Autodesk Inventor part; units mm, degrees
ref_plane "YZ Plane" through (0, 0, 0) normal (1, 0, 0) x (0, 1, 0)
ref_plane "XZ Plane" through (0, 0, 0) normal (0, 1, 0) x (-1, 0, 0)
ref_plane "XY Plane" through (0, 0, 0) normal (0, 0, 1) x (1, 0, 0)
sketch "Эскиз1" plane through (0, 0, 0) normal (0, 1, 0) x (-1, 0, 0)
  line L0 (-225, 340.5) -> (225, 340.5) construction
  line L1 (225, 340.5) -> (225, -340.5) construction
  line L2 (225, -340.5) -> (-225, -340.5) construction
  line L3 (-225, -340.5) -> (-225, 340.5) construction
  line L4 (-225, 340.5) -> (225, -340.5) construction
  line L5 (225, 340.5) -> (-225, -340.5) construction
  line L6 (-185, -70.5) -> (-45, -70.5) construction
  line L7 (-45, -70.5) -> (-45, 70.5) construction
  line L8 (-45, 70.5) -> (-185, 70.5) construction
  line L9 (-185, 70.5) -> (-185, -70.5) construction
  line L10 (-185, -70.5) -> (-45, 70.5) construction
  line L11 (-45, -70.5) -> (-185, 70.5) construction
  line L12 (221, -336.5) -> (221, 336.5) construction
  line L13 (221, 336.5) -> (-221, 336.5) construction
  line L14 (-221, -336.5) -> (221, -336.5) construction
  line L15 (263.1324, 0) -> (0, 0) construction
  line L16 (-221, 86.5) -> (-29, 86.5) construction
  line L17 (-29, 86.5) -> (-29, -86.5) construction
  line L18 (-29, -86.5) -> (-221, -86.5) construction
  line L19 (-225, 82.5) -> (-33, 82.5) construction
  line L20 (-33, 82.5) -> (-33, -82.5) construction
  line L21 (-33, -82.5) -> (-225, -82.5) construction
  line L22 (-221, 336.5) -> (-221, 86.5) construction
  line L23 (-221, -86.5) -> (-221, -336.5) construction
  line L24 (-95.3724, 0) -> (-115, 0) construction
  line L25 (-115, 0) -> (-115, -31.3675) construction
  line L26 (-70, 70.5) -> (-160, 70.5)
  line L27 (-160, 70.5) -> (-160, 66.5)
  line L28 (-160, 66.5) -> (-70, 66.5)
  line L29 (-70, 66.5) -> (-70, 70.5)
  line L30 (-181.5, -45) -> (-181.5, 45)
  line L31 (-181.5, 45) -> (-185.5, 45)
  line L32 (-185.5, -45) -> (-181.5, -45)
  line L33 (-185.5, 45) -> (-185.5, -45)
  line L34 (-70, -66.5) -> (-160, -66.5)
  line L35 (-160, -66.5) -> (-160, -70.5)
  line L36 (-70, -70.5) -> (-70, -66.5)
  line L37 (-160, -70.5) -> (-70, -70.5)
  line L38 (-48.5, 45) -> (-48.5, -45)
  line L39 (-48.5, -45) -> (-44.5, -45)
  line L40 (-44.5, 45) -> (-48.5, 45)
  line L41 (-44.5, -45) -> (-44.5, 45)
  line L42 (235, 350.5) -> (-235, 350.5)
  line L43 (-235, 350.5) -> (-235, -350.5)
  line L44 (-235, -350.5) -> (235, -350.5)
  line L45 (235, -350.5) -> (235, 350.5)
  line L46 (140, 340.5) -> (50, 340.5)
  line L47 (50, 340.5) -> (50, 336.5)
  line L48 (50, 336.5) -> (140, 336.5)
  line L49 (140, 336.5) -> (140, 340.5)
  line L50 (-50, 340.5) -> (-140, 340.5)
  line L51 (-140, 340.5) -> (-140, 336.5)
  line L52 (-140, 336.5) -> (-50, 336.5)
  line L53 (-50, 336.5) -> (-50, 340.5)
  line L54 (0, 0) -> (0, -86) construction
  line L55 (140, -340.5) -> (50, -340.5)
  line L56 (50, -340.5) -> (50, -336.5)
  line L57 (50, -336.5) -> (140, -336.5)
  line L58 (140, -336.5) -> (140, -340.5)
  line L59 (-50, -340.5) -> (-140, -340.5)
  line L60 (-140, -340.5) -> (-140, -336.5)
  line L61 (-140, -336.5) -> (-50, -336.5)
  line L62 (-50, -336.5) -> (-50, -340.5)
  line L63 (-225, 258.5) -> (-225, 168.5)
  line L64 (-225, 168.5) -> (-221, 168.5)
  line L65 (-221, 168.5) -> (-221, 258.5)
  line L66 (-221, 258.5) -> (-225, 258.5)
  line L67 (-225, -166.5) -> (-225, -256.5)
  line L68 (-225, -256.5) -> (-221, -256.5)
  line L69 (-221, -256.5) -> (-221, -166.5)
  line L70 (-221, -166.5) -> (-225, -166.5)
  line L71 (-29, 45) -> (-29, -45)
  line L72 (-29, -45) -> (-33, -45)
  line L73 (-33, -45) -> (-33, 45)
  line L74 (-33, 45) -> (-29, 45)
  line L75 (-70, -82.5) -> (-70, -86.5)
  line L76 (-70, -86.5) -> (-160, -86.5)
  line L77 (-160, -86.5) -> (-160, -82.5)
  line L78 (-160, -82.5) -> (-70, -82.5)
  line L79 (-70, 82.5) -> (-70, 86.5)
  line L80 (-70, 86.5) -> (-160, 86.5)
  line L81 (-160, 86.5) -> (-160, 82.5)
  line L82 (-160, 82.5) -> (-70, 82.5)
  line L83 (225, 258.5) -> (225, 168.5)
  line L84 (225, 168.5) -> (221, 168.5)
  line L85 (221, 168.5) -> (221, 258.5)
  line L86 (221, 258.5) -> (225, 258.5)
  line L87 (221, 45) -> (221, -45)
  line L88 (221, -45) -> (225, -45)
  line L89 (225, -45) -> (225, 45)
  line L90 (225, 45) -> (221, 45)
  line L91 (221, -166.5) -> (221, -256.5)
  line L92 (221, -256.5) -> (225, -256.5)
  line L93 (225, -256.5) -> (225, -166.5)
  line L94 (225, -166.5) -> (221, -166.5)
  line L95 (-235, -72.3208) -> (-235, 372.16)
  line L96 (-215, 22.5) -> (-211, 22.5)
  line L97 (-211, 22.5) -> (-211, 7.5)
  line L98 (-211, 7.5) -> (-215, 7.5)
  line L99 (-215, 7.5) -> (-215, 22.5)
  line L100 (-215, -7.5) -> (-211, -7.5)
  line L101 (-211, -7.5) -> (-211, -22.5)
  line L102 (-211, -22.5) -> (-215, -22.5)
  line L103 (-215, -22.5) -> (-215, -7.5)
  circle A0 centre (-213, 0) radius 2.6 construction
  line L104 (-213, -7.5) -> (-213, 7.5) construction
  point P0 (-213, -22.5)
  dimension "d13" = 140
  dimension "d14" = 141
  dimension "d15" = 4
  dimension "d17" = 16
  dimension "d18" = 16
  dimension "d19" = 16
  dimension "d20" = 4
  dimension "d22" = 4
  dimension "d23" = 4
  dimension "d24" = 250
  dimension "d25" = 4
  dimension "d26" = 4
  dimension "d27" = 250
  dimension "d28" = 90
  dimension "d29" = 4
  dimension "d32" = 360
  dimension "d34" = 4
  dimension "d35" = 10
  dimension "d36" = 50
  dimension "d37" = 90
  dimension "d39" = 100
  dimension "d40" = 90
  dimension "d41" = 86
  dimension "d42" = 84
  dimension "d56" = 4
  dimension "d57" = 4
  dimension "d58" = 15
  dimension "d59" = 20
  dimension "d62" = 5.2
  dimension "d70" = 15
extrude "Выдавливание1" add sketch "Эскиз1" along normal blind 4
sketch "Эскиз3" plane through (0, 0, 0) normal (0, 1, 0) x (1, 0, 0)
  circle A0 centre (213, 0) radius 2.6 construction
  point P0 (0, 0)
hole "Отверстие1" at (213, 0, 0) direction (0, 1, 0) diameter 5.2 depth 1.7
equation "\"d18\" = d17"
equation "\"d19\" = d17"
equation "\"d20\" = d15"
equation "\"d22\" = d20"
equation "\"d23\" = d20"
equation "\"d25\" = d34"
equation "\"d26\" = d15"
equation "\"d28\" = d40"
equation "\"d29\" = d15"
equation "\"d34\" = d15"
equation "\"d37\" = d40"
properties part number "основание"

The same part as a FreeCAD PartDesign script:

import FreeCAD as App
import Part
import Sketcher
from FreeCAD import Vector
Q = App.Units.Quantity

doc = App.newDocument("Part")
body = doc.addObject("PartDesign::Body", "Body")

# Sketch on XZ plane
sketch1 = body.newObject("Sketcher::SketchObject", "Sketch")
sketch1.AttachmentSupport = (doc.getObject("XZ_Plane"), [""])
sketch1.MapMode = "FlatFace"
sketch1.addGeometry([
    Part.LineSegment(Vector(-235, -350.5, 0), Vector(-235, 350.5, 0)),  # 0
    Part.LineSegment(Vector(-235, 350.5, 0), Vector(235, 350.5, 0)),  # 1
    Part.LineSegment(Vector(235, 350.5, 0), Vector(235, -350.5, 0)),  # 2
    Part.LineSegment(Vector(235, -350.5, 0), Vector(-235, -350.5, 0)),  # 3
    Part.LineSegment(Vector(225, -256.5, 0), Vector(225, -166.5, 0)),  # 4
    Part.LineSegment(Vector(225, -166.5, 0), Vector(221, -166.5, 0)),  # 5
    Part.LineSegment(Vector(221, -166.5, 0), Vector(221, -256.5, 0)),  # 6
    Part.LineSegment(Vector(221, -256.5, 0), Vector(225, -256.5, 0)),  # 7
    Part.LineSegment(Vector(50, -336.5, 0), Vector(50, -340.5, 0)),  # 8
    Part.LineSegment(Vector(50, -340.5, 0), Vector(140, -340.5, 0)),  # 9
    Part.LineSegment(Vector(140, -340.5, 0), Vector(140, -336.5, 0)),  # 10
    Part.LineSegment(Vector(140, -336.5, 0), Vector(50, -336.5, 0)),  # 11
    Part.LineSegment(Vector(215, -22.5, 0), Vector(215, -7.5, 0)),  # 12
    Part.LineSegment(Vector(215, -7.5, 0), Vector(211, -7.5, 0)),  # 13
    Part.LineSegment(Vector(211, -7.5, 0), Vector(211, -22.5, 0)),  # 14
    Part.LineSegment(Vector(211, -22.5, 0), Vector(215, -22.5, 0)),  # 15
    Part.LineSegment(Vector(160, -82.5, 0), Vector(70, -82.5, 0)),  # 16
    Part.LineSegment(Vector(70, -82.5, 0), Vector(70, -86.5, 0)),  # 17
    Part.LineSegment(Vector(70, -86.5, 0), Vector(160, -86.5, 0)),  # 18
    Part.LineSegment(Vector(160, -86.5, 0), Vector(160, -82.5, 0)),  # 19
    Part.LineSegment(Vector(160, -66.5, 0), Vector(70, -66.5, 0)),  # 20
    Part.LineSegment(Vector(70, -66.5, 0), Vector(70, -70.5, 0)),  # 21
    Part.LineSegment(Vector(70, -70.5, 0), Vector(160, -70.5, 0)),  # 22
    Part.LineSegment(Vector(160, -70.5, 0), Vector(160, -66.5, 0)),  # 23
    Part.LineSegment(Vector(-140, -336.5, 0), Vector(-140, -340.5, 0)),  # 24
    Part.LineSegment(Vector(-140, -340.5, 0), Vector(-50, -340.5, 0)),  # 25
    Part.LineSegment(Vector(-50, -340.5, 0), Vector(-50, -336.5, 0)),  # 26
    Part.LineSegment(Vector(-50, -336.5, 0), Vector(-140, -336.5, 0)),  # 27
    Part.LineSegment(Vector(-221, -256.5, 0), Vector(-221, -166.5, 0)),  # 28
    Part.LineSegment(Vector(-221, -166.5, 0), Vector(-225, -166.5, 0)),  # 29
    Part.LineSegment(Vector(-225, -166.5, 0), Vector(-225, -256.5, 0)),  # 30
    Part.LineSegment(Vector(-225, -256.5, 0), Vector(-221, -256.5, 0)),  # 31
    Part.LineSegment(Vector(215, 7.5, 0), Vector(215, 22.5, 0)),  # 32
    Part.LineSegment(Vector(215, 22.5, 0), Vector(211, 22.5, 0)),  # 33
    Part.LineSegment(Vector(211, 22.5, 0), Vector(211, 7.5, 0)),  # 34
    Part.LineSegment(Vector(211, 7.5, 0), Vector(215, 7.5, 0)),  # 35
    Part.LineSegment(Vector(181.5, 45, 0), Vector(181.5, -45, 0)),  # 36
    Part.LineSegment(Vector(181.5, -45, 0), Vector(185.5, -45, 0)),  # 37
    Part.LineSegment(Vector(185.5, -45, 0), Vector(185.5, 45, 0)),  # 38
    Part.LineSegment(Vector(185.5, 45, 0), Vector(181.5, 45, 0)),  # 39
    Part.LineSegment(Vector(160, 70.5, 0), Vector(70, 70.5, 0)),  # 40
    Part.LineSegment(Vector(70, 70.5, 0), Vector(70, 66.5, 0)),  # 41
    Part.LineSegment(Vector(70, 66.5, 0), Vector(160, 66.5, 0)),  # 42
    Part.LineSegment(Vector(160, 66.5, 0), Vector(160, 70.5, 0)),  # 43
    Part.LineSegment(Vector(70, 86.5, 0), Vector(70, 82.5, 0)),  # 44
    Part.LineSegment(Vector(70, 82.5, 0), Vector(160, 82.5, 0)),  # 45
    Part.LineSegment(Vector(160, 82.5, 0), Vector(160, 86.5, 0)),  # 46
    Part.LineSegment(Vector(160, 86.5, 0), Vector(70, 86.5, 0)),  # 47
    Part.LineSegment(Vector(48.5, -45, 0), Vector(48.5, 45, 0)),  # 48
    Part.LineSegment(Vector(48.5, 45, 0), Vector(44.5, 45, 0)),  # 49
    Part.LineSegment(Vector(44.5, 45, 0), Vector(44.5, -45, 0)),  # 50
    Part.LineSegment(Vector(44.5, -45, 0), Vector(48.5, -45, 0)),  # 51
    Part.LineSegment(Vector(33, 45, 0), Vector(29, 45, 0)),  # 52
    Part.LineSegment(Vector(29, 45, 0), Vector(29, -45, 0)),  # 53
    Part.LineSegment(Vector(29, -45, 0), Vector(33, -45, 0)),  # 54
    Part.LineSegment(Vector(33, -45, 0), Vector(33, 45, 0)),  # 55
    Part.LineSegment(Vector(225, 168.5, 0), Vector(225, 258.5, 0)),  # 56
    Part.LineSegment(Vector(225, 258.5, 0), Vector(221, 258.5, 0)),  # 57
    Part.LineSegment(Vector(221, 258.5, 0), Vector(221, 168.5, 0)),  # 58
    Part.LineSegment(Vector(221, 168.5, 0), Vector(225, 168.5, 0)),  # 59
    Part.LineSegment(Vector(140, 340.5, 0), Vector(50, 340.5, 0)),  # 60
    Part.LineSegment(Vector(50, 340.5, 0), Vector(50, 336.5, 0)),  # 61
    Part.LineSegment(Vector(50, 336.5, 0), Vector(140, 336.5, 0)),  # 62
    Part.LineSegment(Vector(140, 336.5, 0), Vector(140, 340.5, 0)),  # 63
    Part.LineSegment(Vector(-221, -45, 0), Vector(-221, 45, 0)),  # 64
    Part.LineSegment(Vector(-221, 45, 0), Vector(-225, 45, 0)),  # 65
    Part.LineSegment(Vector(-225, 45, 0), Vector(-225, -45, 0)),  # 66
    Part.LineSegment(Vector(-225, -45, 0), Vector(-221, -45, 0)),  # 67
    Part.LineSegment(Vector(-50, 340.5, 0), Vector(-140, 340.5, 0)),  # 68
    Part.LineSegment(Vector(-140, 340.5, 0), Vector(-140, 336.5, 0)),  # 69
    Part.LineSegment(Vector(-140, 336.5, 0), Vector(-50, 336.5, 0)),  # 70
    Part.LineSegment(Vector(-50, 336.5, 0), Vector(-50, 340.5, 0)),  # 71
    Part.LineSegment(Vector(-221, 258.5, 0), Vector(-225, 258.5, 0)),  # 72
    Part.LineSegment(Vector(-225, 258.5, 0), Vector(-225, 168.5, 0)),  # 73
    Part.LineSegment(Vector(-225, 168.5, 0), Vector(-221, 168.5, 0)),  # 74
    Part.LineSegment(Vector(-221, 168.5, 0), Vector(-221, 258.5, 0)),  # 75
], False)
sketch1.addConstraint([
    Sketcher.Constraint("Coincident", 0, 2, 1, 1),
    Sketcher.Constraint("Coincident", 1, 2, 2, 1),
    Sketcher.Constraint("Coincident", 2, 2, 3, 1),
    Sketcher.Constraint("Coincident", 3, 2, 0, 1),
    Sketcher.Constraint("Coincident", 4, 2, 5, 1),
    Sketcher.Constraint("Coincident", 5, 2, 6, 1),
    Sketcher.Constraint("Coincident", 6, 2, 7, 1),
    Sketcher.Constraint("Coincident", 7, 2, 4, 1),
    Sketcher.Constraint("Coincident", 8, 2, 9, 1),
    Sketcher.Constraint("Coincident", 9, 2, 10, 1),
    Sketcher.Constraint("Coincident", 10, 2, 11, 1),
    Sketcher.Constraint("Coincident", 11, 2, 8, 1),
    Sketcher.Constraint("Coincident", 12, 2, 13, 1),
    Sketcher.Constraint("Coincident", 13, 2, 14, 1),
    Sketcher.Constraint("Coincident", 14, 2, 15, 1),
    Sketcher.Constraint("Coincident", 15, 2, 12, 1),
    Sketcher.Constraint("Coincident", 16, 2, 17, 1),
    Sketcher.Constraint("Coincident", 17, 2, 18, 1),
    Sketcher.Constraint("Coincident", 18, 2, 19, 1),
    Sketcher.Constraint("Coincident", 19, 2, 16, 1),
    Sketcher.Constraint("Coincident", 20, 2, 21, 1),
    Sketcher.Constraint("Coincident", 21, 2, 22, 1),
    Sketcher.Constraint("Coincident", 22, 2, 23, 1),
    Sketcher.Constraint("Coincident", 23, 2, 20, 1),
    Sketcher.Constraint("Coincident", 24, 2, 25, 1),
    Sketcher.Constraint("Coincident", 25, 2, 26, 1),
    Sketcher.Constraint("Coincident", 26, 2, 27, 1),
    Sketcher.Constraint("Coincident", 27, 2, 24, 1),
    Sketcher.Constraint("Coincident", 28, 2, 29, 1),
    Sketcher.Constraint("Coincident", 29, 2, 30, 1),
    Sketcher.Constraint("Coincident", 30, 2, 31, 1),
    Sketcher.Constraint("Coincident", 31, 2, 28, 1),
    Sketcher.Constraint("Coincident", 32, 2, 33, 1),
    Sketcher.Constraint("Coincident", 33, 2, 34, 1),
    Sketcher.Constraint("Coincident", 34, 2, 35, 1),
    Sketcher.Constraint("Coincident", 35, 2, 32, 1),
    Sketcher.Constraint("Coincident", 36, 2, 37, 1),
    Sketcher.Constraint("Coincident", 37, 2, 38, 1),
    Sketcher.Constraint("Coincident", 38, 2, 39, 1),
    Sketcher.Constraint("Coincident", 39, 2, 36, 1),
    Sketcher.Constraint("Coincident", 40, 2, 41, 1),
    Sketcher.Constraint("Coincident", 41, 2, 42, 1),
    Sketcher.Constraint("Coincident", 42, 2, 43, 1),
    Sketcher.Constraint("Coincident", 43, 2, 40, 1),
    Sketcher.Constraint("Coincident", 44, 2, 45, 1),
    Sketcher.Constraint("Coincident", 45, 2, 46, 1),
    Sketcher.Constraint("Coincident", 46, 2, 47, 1),
    Sketcher.Constraint("Coincident", 47, 2, 44, 1),
    Sketcher.Constraint("Coincident", 48, 2, 49, 1),
    Sketcher.Constraint("Coincident", 49, 2, 50, 1),
    Sketcher.Constraint("Coincident", 50, 2, 51, 1),
    Sketcher.Constraint("Coincident", 51, 2, 48, 1),
    Sketcher.Constraint("Coincident", 52, 2, 53, 1),
    Sketcher.Constraint("Coincident", 53, 2, 54, 1),
    Sketcher.Constraint("Coincident", 54, 2, 55, 1),
    Sketcher.Constraint("Coincident", 55, 2, 52, 1),
    Sketcher.Constraint("Coincident", 56, 2, 57, 1),
    Sketcher.Constraint("Coincident", 57, 2, 58, 1),
    Sketcher.Constraint("Coincident", 58, 2, 59, 1),
    Sketcher.Constraint("Coincident", 59, 2, 56, 1),
    Sketcher.Constraint("Coincident", 60, 2, 61, 1),
    Sketcher.Constraint("Coincident", 61, 2, 62, 1),
    Sketcher.Constraint("Coincident", 62, 2, 63, 1),
    Sketcher.Constraint("Coincident", 63, 2, 60, 1),
    Sketcher.Constraint("Coincident", 64, 2, 65, 1),
    Sketcher.Constraint("Coincident", 65, 2, 66, 1),
    Sketcher.Constraint("Coincident", 66, 2, 67, 1),
    Sketcher.Constraint("Coincident", 67, 2, 64, 1),
    Sketcher.Constraint("Coincident", 68, 2, 69, 1),
    Sketcher.Constraint("Coincident", 69, 2, 70, 1),
    Sketcher.Constraint("Coincident", 70, 2, 71, 1),
    Sketcher.Constraint("Coincident", 71, 2, 68, 1),
    Sketcher.Constraint("Coincident", 72, 2, 73, 1),
    Sketcher.Constraint("Coincident", 73, 2, 74, 1),
    Sketcher.Constraint("Coincident", 74, 2, 75, 1),
    Sketcher.Constraint("Coincident", 75, 2, 72, 1),
    Sketcher.Constraint("Vertical", 0),
    Sketcher.Constraint("Horizontal", 1),
    Sketcher.Constraint("Vertical", 2),
    Sketcher.Constraint("Horizontal", 3),
    Sketcher.Constraint("Vertical", 4),
    Sketcher.Constraint("Horizontal", 5),
    Sketcher.Constraint("Vertical", 6),
    Sketcher.Constraint("Horizontal", 7),
    Sketcher.Constraint("Vertical", 8),
    Sketcher.Constraint("Horizontal", 9),
    Sketcher.Constraint("Vertical", 10),
    Sketcher.Constraint("Horizontal", 11),
    Sketcher.Constraint("Vertical", 12),
    Sketcher.Constraint("Horizontal", 13),
    Sketcher.Constraint("Vertical", 14),
    Sketcher.Constraint("Horizontal", 15),
    Sketcher.Constraint("Horizontal", 16),
    Sketcher.Constraint("Vertical", 17),
    Sketcher.Constraint("Horizontal", 18),
    Sketcher.Constraint("Vertical", 19),
    Sketcher.Constraint("Horizontal", 20),
    Sketcher.Constraint("Vertical", 21),
    Sketcher.Constraint("Horizontal", 22),
    Sketcher.Constraint("Vertical", 23),
    Sketcher.Constraint("Vertical", 24),
    Sketcher.Constraint("Horizontal", 25),
    Sketcher.Constraint("Vertical", 26),
    Sketcher.Constraint("Horizontal", 27),
    Sketcher.Constraint("Vertical", 28),
    Sketcher.Constraint("Horizontal", 29),
    Sketcher.Constraint("Vertical", 30),
    Sketcher.Constraint("Horizontal", 31),
    Sketcher.Constraint("Vertical", 32),
    Sketcher.Constraint("Horizontal", 33),
    Sketcher.Constraint("Vertical", 34),
    Sketcher.Constraint("Horizontal", 35),
    Sketcher.Constraint("Vertical", 36),
    Sketcher.Constraint("Horizontal", 37),
    Sketcher.Constraint("Vertical", 38),
    Sketcher.Constraint("Horizontal", 39),
    Sketcher.Constraint("Horizontal", 40),
    Sketcher.Constraint("Vertical", 41),
    Sketcher.Constraint("Horizontal", 42),
    Sketcher.Constraint("Vertical", 43),
    Sketcher.Constraint("Vertical", 44),
    Sketcher.Constraint("Horizontal", 45),
    Sketcher.Constraint("Vertical", 46),
    Sketcher.Constraint("Horizontal", 47),
    Sketcher.Constraint("Vertical", 48),
    Sketcher.Constraint("Horizontal", 49),
    Sketcher.Constraint("Vertical", 50),
    Sketcher.Constraint("Horizontal", 51),
    Sketcher.Constraint("Horizontal", 52),
    Sketcher.Constraint("Vertical", 53),
    Sketcher.Constraint("Horizontal", 54),
    Sketcher.Constraint("Vertical", 55),
    Sketcher.Constraint("Vertical", 56),
    Sketcher.Constraint("Horizontal", 57),
    Sketcher.Constraint("Vertical", 58),
    Sketcher.Constraint("Horizontal", 59),
    Sketcher.Constraint("Horizontal", 60),
    Sketcher.Constraint("Vertical", 61),
    Sketcher.Constraint("Horizontal", 62),
    Sketcher.Constraint("Vertical", 63),
    Sketcher.Constraint("Vertical", 64),
    Sketcher.Constraint("Horizontal", 65),
    Sketcher.Constraint("Vertical", 66),
    Sketcher.Constraint("Horizontal", 67),
    Sketcher.Constraint("Horizontal", 68),
    Sketcher.Constraint("Vertical", 69),
    Sketcher.Constraint("Horizontal", 70),
    Sketcher.Constraint("Vertical", 71),
    Sketcher.Constraint("Horizontal", 72),
    Sketcher.Constraint("Vertical", 73),
    Sketcher.Constraint("Horizontal", 74),
    Sketcher.Constraint("Vertical", 75),
    Sketcher.Constraint("Symmetric", 0, 2, 2, 2, -1, 1),
    Sketcher.Constraint("Symmetric", 25, 2, 60, 2, -1, 1),
    Sketcher.Constraint("Symmetric", 27, 2, 62, 2, -1, 1),
    Sketcher.Constraint("Symmetric", 9, 2, 68, 2, -1, 1),
    Sketcher.Constraint("Symmetric", 11, 2, 70, 2, -1, 1),
    Sketcher.Constraint("Symmetric", 9, 2, 24, 2, -2),
    Sketcher.Constraint("Symmetric", 11, 2, 26, 2, -2),
    Sketcher.Constraint("Symmetric", 5, 2, 28, 2, -2),
    Sketcher.Constraint("Symmetric", 7, 2, 30, 2, -2),
    Sketcher.Constraint("Symmetric", 56, 2, 72, 2, -2),
    Sketcher.Constraint("Symmetric", 58, 2, 74, 2, -2),
    Sketcher.Constraint("Symmetric", 15, 2, 32, 2, -1),
    Sketcher.Constraint("Symmetric", 13, 2, 34, 2, -1),
    Sketcher.Constraint("Symmetric", 21, 2, 40, 2, -1),
    Sketcher.Constraint("Symmetric", 23, 2, 42, 2, -1),
    Sketcher.Constraint("Symmetric", 16, 2, 44, 2, -1),
    Sketcher.Constraint("Symmetric", 18, 2, 46, 2, -1),
    Sketcher.Constraint("Horizontal", 39, 2, 48, 2),
    Sketcher.Constraint("Horizontal", 37, 2, 50, 2),
    Sketcher.Constraint("Horizontal", 49, 2, 52, 2),
    Sketcher.Constraint("Horizontal", 51, 2, 53, 2),
    Sketcher.Constraint("Horizontal", 55, 2, 64, 2),
    Sketcher.Constraint("Horizontal", 54, 2, 66, 2),
    Sketcher.Constraint("Vertical", 17, 2, 20, 2),
    Sketcher.Constraint("Vertical", 19, 2, 22, 2),
    Sketcher.Constraint("Vertical", 7, 2, 56, 2),
    Sketcher.Constraint("Vertical", 6, 2, 57, 2),
    Sketcher.Constraint("Vertical", 31, 2, 64, 2),
    Sketcher.Constraint("Vertical", 30, 2, 65, 2),
    Sketcher.Constraint("Equal", 7, 13),
    Sketcher.Constraint("Equal", 11, 16),
    Sketcher.Constraint("Equal", 35, 37),
    Sketcher.Constraint("Equal", 39, 49),
    Sketcher.Constraint("Equal", 51, 52),
    Sketcher.Constraint("Equal", 70, 4),
    Sketcher.Constraint("Equal", 74, 8),
    Sketcher.Constraint("Equal", 10, 17),
    Sketcher.Constraint("Equal", 19, 21),
    Sketcher.Constraint("Equal", 30, 36),
    Sketcher.Constraint("Equal", 55, 56),
    Sketcher.Constraint("DistanceX", 5, 2, 5, 1, Q("4 mm")),
    Sketcher.Constraint("DistanceX", 9, 1, 9, 2, Q("90 mm")),
    Sketcher.Constraint("DistanceY", 12, 1, 12, 2, Q("15 mm")),
    Sketcher.Constraint("DistanceX", -1, 1, 8, 2, Q("50 mm")),
    Sketcher.Constraint("DistanceX", 1, 1, 1, 2, Q("470 mm")),
    Sketcher.Constraint("DistanceY", 0, 1, 0, 2, Q("701 mm")),
    Sketcher.Constraint("DistanceX", -1, 1, 4, 2, Q("225 mm")),
    Sketcher.Constraint("DistanceX", -1, 1, 12, 2, Q("215 mm")),
    Sketcher.Constraint("DistanceX", -1, 1, 16, 2, Q("70 mm")),
    Sketcher.Constraint("DistanceY", 36, 2, -1, 1, Q("45 mm")),
    Sketcher.Constraint("DistanceX", -1, 1, 52, 2, Q("29 mm")),
    Sketcher.Constraint("DistanceY", 4, 2, -1, 1, Q("166.5 mm")),
    Sketcher.Constraint("DistanceY", 8, 2, -1, 1, Q("340.5 mm")),
    Sketcher.Constraint("DistanceY", 12, 2, -1, 1, Q("7.5 mm")),
    Sketcher.Constraint("DistanceY", 16, 2, -1, 1, Q("82.5 mm")),
    Sketcher.Constraint("DistanceY", 20, 2, -1, 1, Q("66.5 mm")),
    Sketcher.Constraint("DistanceX", -1, 1, 36, 2, Q("181.5 mm")),
    Sketcher.Constraint("DistanceX", -1, 1, 48, 2, Q("48.5 mm")),
    Sketcher.Constraint("DistanceY", -1, 1, 56, 2, Q("258.5 mm")),
])
pad1 = body.newObject("PartDesign::Pad", "Pad")
pad1.Profile = sketch1
pad1.Length = 4
pad1.Reversed = True

# Sketch on XZ plane
sketch2 = body.newObject("Sketcher::SketchObject", "Sketch001")
sketch2.AttachmentSupport = (doc.getObject("XZ_Plane"), [""])
sketch2.MapMode = "FlatFace"
sketch2.addGeometry(Part.Circle(Vector(213, 0, 0), Vector(0, 0, 1), 2.6), False)
sketch2.addConstraint([
    Sketcher.Constraint("PointOnObject", 0, 3, -1),
    Sketcher.Constraint("Diameter", 0, Q("5.2 mm")),
    Sketcher.Constraint("DistanceX", -1, 1, 0, 3, Q("213 mm")),
])
doc.recompute()
hole = body.newObject("PartDesign::Hole", "Hole")
hole.Profile = sketch2
hole.ThreadType = "None"
hole.Diameter = 5.2
hole.DepthType = "Dimension"
hole.Depth = 1.7
hole.DrillPoint = "Flat"

doc.recompute()
